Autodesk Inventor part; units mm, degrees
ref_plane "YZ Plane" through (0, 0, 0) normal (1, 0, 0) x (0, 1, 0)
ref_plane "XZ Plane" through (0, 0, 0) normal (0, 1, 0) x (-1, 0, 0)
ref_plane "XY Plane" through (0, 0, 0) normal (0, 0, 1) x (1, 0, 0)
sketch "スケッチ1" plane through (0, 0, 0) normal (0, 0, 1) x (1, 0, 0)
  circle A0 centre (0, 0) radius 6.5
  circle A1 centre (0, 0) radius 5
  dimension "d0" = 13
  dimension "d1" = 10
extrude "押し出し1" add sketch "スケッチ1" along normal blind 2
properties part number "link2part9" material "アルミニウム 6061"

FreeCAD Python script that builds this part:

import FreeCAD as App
import Part
import Sketcher

V = App.Vector
Q = App.Units.Quantity

doc = App.newDocument("Part")
params = doc.addObject("Spreadsheet::Sheet", "Params")
for row, (alias, value) in enumerate([
    ("sketch1_diameter", "13 mm"),
    ("sketch1_diameter2", "10 mm"),
    ("pad1_length", "2 mm"),
], start=1):
    params.set(f"A{row}", alias)
    params.set(f"B{row}", "=" + value)
    params.setAlias(f"B{row}", alias)

body = doc.addObject("PartDesign::Body", "Body")

sketch1 = body.newObject("Sketcher::SketchObject", "Sketch")
sketch1.AttachmentSupport = (doc.getObject("XY_Plane"), [""])
sketch1.MapMode = "FlatFace"
sketch1.addGeometry([
    Part.Circle(V(0, 0, 0), V(0, 0, 1), 6),
    Part.Circle(V(0, 0, 0), V(0, 0, 1), 5),
], False)
sketch1.addConstraint([
    Sketcher.Constraint("Coincident", 0, 3, -1, 1),
    Sketcher.Constraint("Coincident", 1, 3, -1, 1),
    Sketcher.Constraint("Diameter", 0, Q("13 mm")),
    Sketcher.Constraint("Diameter", 1, Q("10 mm")),
])
sketch1.setExpression("Constraints[2]", "Params.sketch1_diameter")
sketch1.setExpression("Constraints[3]", "Params.sketch1_diameter2")
pad1 = body.newObject("PartDesign::Pad", "Pad")
pad1.Profile = sketch1
pad1.setExpression("Length", "Params.pad1_length")

doc.recompute()
